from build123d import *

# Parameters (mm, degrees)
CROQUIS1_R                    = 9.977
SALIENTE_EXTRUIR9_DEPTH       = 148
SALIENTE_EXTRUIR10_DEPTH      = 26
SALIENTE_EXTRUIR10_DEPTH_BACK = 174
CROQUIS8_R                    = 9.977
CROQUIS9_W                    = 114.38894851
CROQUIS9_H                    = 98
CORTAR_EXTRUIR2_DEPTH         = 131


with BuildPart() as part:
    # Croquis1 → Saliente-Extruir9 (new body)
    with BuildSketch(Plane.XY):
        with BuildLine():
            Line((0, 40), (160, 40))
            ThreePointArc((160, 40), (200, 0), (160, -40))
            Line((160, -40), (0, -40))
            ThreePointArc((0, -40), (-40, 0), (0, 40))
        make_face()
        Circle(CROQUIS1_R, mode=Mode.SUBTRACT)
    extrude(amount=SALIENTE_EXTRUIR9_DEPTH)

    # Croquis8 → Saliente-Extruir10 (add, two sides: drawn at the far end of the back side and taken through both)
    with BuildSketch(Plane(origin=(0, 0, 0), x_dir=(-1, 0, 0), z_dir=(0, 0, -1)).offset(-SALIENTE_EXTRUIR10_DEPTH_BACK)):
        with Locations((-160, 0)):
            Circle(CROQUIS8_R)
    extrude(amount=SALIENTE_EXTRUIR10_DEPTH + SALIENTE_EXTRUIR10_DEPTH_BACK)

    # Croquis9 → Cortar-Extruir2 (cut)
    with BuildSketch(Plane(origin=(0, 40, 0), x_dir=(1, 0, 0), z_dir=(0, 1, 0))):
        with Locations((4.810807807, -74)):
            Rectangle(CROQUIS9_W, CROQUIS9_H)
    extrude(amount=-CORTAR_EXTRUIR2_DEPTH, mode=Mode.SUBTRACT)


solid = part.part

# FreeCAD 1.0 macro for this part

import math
import FreeCAD as App
import Part
import Sketcher
from FreeCAD import Vector


def add_polygon(sketch, points):
    """Adds a closed chain of lines whose ends are joined by coincident constraints."""
    first, n = sketch.GeometryCount, len(points)
    for a, b in zip(points, points[1:] + points[:1]):
        sketch.addGeometry(Part.LineSegment(App.Vector(*a, 0), App.Vector(*b, 0)), False)
    for i in range(n):
        sketch.addConstraint(Sketcher.Constraint("Coincident", first + i, 2, first + (i + 1) % n, 1))

doc = App.newDocument("Part")
body = doc.addObject("PartDesign::Body", "Body")

sketch1 = body.newObject("Sketcher::SketchObject", "Sketch")
sketch1.AttachmentSupport = (doc.getObject("XY_Plane"), [""])
sketch1.MapMode = "FlatFace"
sketch1.addGeometry(Part.LineSegment(Vector(160, 40, 0), Vector(0, 40, 0)), False)
sketch1.addGeometry(Part.ArcOfCircle(Part.Circle(Vector(0, 0, 0), Vector(0, 0, 1), 40), math.radians(90), math.radians(270)), False)
sketch1.addGeometry(Part.LineSegment(Vector(0, -40, 0), Vector(160, -40, 0)), False)
sketch1.addGeometry(Part.ArcOfCircle(Part.Circle(Vector(160, 0, 0), Vector(0, 0, 1), 40), math.radians(-90), math.radians(90)), False)
sketch1.addGeometry(Part.Circle(Vector(0, 0, 0), Vector(0, 0, 1), 10), False)
sketch1.addConstraint(Sketcher.Constraint("Tangent", 0, 2, 1, 1))
sketch1.addConstraint(Sketcher.Constraint("Tangent", 1, 2, 2, 1))
sketch1.addConstraint(Sketcher.Constraint("Tangent", 2, 2, 3, 1))
sketch1.addConstraint(Sketcher.Constraint("Tangent", 3, 2, 0, 1))
sketch1.addConstraint(Sketcher.Constraint("Horizontal", 0))
sketch1.addConstraint(Sketcher.Constraint("Horizontal", 2))
sketch1.addConstraint(Sketcher.Constraint("Coincident", 1, 3, -1, 1))
sketch1.addConstraint(Sketcher.Constraint("Coincident", 4, 3, -1, 1))
sketch1.addConstraint(Sketcher.Constraint("Radius", 1, 40.0))
sketch1.addConstraint(Sketcher.Constraint("DistanceX", 0, 2, 0, 1, 160.0))
sketch1.addConstraint(Sketcher.Constraint("Diameter", 4, 19.954))
pad1 = body.newObject("PartDesign::Pad", "Pad")
pad1.Profile = sketch1
pad1.Length = 148

sketch2 = body.newObject("Sketcher::SketchObject", "Sketch001")
sketch2.AttachmentSupport = (doc.getObject("XY_Plane"), [""])
sketch2.MapMode = "FlatFace"
sketch2.addGeometry(Part.Circle(Vector(160, 0, 0), Vector(0, 0, 1), 10), False)
sketch2.addConstraint(Sketcher.Constraint("PointOnObject", 0, 3, -1))
sketch2.addConstraint(Sketcher.Constraint("Diameter", 0, 19.954))
sketch2.addConstraint(Sketcher.Constraint("DistanceX", -1, 1, 0, 3, 160.0))
pad2 = body.newObject("PartDesign::Pad", "Pad001")
pad2.Profile = sketch2
pad2.Type = "TwoLengths"
pad2.Length = 26
pad2.Length2 = 174
pad2.Reversed = True

sketch3 = body.newObject("Sketcher::SketchObject", "Sketch002")
sketch3.AttachmentSupport = (doc.getObject("XZ_Plane"), [""])
sketch3.MapMode = "FlatFace"
sketch3.AttachmentOffset = App.Placement(Vector(0, 0, -40), App.Rotation())
add_polygon(sketch3, [(-52, 25), (-52, 123), (62, 123), (62, 25)])
sketch3.addConstraint(Sketcher.Constraint("Vertical", 0))
sketch3.addConstraint(Sketcher.Constraint("Horizontal", 1))
sketch3.addConstraint(Sketcher.Constraint("Vertical", 2))
sketch3.addConstraint(Sketcher.Constraint("Horizontal", 3))
sketch3.addConstraint(Sketcher.Constraint("DistanceY", 0, 1, 0, 2, 98.0))
sketch3.addConstraint(Sketcher.Constraint("DistanceY", -1, 1, 0, 2, 123.0))
sketch3.addConstraint(Sketcher.Constraint("DistanceX", 1, 1, 1, 2, 114.388949))
sketch3.addConstraint(Sketcher.Constraint("DistanceX", 0, 2, -1, 1, 52.383666))
pocket1 = body.newObject("PartDesign::Pocket", "Pocket")
pocket1.Profile = sketch3
pocket1.Length = 131
pocket1.Reversed = True

doc.recompute()
